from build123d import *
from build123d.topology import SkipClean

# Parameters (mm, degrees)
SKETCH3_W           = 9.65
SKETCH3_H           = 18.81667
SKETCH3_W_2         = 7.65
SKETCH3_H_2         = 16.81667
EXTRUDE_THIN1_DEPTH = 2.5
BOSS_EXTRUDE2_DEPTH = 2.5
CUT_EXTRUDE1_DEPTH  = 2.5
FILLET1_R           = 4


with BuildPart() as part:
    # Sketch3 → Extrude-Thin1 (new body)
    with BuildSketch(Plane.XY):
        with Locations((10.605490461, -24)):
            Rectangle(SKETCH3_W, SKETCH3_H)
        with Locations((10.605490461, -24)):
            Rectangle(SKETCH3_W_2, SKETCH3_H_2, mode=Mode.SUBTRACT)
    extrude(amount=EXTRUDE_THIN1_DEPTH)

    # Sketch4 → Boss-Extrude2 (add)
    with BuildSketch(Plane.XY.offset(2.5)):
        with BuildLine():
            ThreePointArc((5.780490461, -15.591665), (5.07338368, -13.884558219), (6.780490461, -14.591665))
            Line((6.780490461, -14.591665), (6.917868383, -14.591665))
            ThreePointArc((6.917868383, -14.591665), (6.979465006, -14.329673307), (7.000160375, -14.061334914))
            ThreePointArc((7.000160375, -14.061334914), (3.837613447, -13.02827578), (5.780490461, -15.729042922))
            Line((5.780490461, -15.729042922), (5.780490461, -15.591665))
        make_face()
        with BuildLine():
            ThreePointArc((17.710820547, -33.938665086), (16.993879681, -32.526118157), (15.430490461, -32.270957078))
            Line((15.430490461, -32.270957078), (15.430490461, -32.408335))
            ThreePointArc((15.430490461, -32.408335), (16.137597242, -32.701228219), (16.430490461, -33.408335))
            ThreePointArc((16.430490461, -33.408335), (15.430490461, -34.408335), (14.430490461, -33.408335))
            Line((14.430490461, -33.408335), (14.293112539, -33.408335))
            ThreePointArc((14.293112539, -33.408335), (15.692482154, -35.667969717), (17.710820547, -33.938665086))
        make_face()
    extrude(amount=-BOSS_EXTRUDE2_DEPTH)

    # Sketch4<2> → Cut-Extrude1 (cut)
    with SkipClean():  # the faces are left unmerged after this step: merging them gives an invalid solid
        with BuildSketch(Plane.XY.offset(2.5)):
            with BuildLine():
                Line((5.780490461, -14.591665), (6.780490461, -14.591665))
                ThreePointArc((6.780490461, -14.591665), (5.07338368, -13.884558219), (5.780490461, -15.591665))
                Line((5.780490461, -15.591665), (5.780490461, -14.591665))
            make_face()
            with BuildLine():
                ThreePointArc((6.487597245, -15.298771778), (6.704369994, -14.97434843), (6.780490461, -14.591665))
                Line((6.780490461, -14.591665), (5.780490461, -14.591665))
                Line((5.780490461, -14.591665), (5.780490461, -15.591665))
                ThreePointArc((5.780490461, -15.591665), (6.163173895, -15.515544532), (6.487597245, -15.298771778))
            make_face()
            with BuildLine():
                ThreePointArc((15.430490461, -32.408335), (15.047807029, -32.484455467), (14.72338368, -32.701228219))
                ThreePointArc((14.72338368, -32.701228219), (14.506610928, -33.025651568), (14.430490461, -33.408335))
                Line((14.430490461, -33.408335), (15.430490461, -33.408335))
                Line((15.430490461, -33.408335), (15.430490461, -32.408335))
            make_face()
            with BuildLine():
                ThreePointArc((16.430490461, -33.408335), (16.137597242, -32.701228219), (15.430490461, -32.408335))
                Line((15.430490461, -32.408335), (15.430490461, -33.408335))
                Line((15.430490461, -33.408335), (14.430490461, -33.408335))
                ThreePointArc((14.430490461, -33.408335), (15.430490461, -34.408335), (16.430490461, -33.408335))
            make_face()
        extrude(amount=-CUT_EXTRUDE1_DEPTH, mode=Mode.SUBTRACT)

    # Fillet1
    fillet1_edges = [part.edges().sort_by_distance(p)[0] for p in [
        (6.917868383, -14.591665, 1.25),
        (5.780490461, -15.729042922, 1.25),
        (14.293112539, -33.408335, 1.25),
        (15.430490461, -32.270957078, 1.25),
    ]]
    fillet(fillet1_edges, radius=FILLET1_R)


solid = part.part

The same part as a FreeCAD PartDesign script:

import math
import FreeCAD as App
import Part
import Sketcher
from FreeCAD import Vector


def edges_at(feature, points):
    """Names of the edges that pass closest to the given points."""
    edges = feature.Shape.Edges
    near = lambda p: min(range(len(edges)), key=lambda i: edges[i].distToShape(Part.Vertex(*p))[0])
    return sorted({f"Edge{near(p) + 1}" for p in points})


def add_polygon(sketch, points):
    """Adds a closed chain of lines whose ends are joined by coincident constraints."""
    first, n = sketch.GeometryCount, len(points)
    for a, b in zip(points, points[1:] + points[:1]):
        sketch.addGeometry(Part.LineSegment(App.Vector(*a, 0), App.Vector(*b, 0)), False)
    for i in range(n):
        sketch.addConstraint(Sketcher.Constraint("Coincident", first + i, 2, first + (i + 1) % n, 1))

doc = App.newDocument("Part")
body = doc.addObject("PartDesign::Body", "Body")

sketch1 = body.newObject("Sketcher::SketchObject", "Sketch")
sketch1.AttachmentSupport = (doc.getObject("XY_Plane"), [""])
sketch1.MapMode = "FlatFace"
add_polygon(sketch1, [(6, -15), (6, -33), (15, -33), (15, -15)])
add_polygon(sketch1, [(14, -32), (7, -32), (7, -16), (14, -16)])
sketch1.addConstraint([
    Sketcher.Constraint("Vertical", 0),
    Sketcher.Constraint("Horizontal", 1),
    Sketcher.Constraint("Vertical", 2),
    Sketcher.Constraint("Horizontal", 3),
    Sketcher.Constraint("Horizontal", 4),
    Sketcher.Constraint("Vertical", 5),
    Sketcher.Constraint("Horizontal", 6),
    Sketcher.Constraint("Vertical", 7),
    Sketcher.Constraint("DistanceX", 0, 2, 4, 2, 1.0),
    Sketcher.Constraint("DistanceY", 0, 2, 4, 2, 1.0),
    Sketcher.Constraint("DistanceY", 5, 2, 3, 2, 1.0),
    Sketcher.Constraint("DistanceX", 6, 2, 2, 2, 1.0),
    Sketcher.Constraint("DistanceX", 1, 1, 1, 2, 9.65),
    Sketcher.Constraint("DistanceY", 0, 2, 0, 1, 18.81667),
    Sketcher.Constraint("DistanceX", -1, 1, 0, 2, 5.78049),
    Sketcher.Constraint("DistanceY", 0, 2, -1, 1, 33.408335),
])
pad1 = body.newObject("PartDesign::Pad", "Pad")
pad1.Profile = sketch1
pad1.Length = 2.5

sketch2 = body.newObject("Sketcher::SketchObject", "Sketch001")
sketch2.AttachmentSupport = (doc.getObject("XY_Plane"), [""])
sketch2.MapMode = "FlatFace"
sketch2.AttachmentOffset = App.Placement(Vector(0, 0, 2.5), App.Rotation())
sketch2.addGeometry([
    Part.ArcOfCircle(Part.Circle(Vector(5.78, -14.59, 0), Vector(0, 0, 1), 1), math.radians(0), math.radians(270)),
    Part.LineSegment(Vector(6.78, -14.59, 0), Vector(6.92, -14.59, 0)),
    Part.ArcOfCircle(Part.Circle(Vector(5.25, -14.06, 0), Vector(0, 0, 1), 1.75), math.radians(-17.64), math.radians(0)),
    Part.ArcOfCircle(Part.Circle(Vector(5.25, -14.06, 0), Vector(0, 0, 1), 1.75), math.radians(0), math.radians(288)),
    Part.LineSegment(Vector(5.78, -15.73, 0), Vector(5.78, -15.59, 0)),
    Part.ArcOfCircle(Part.Circle(Vector(15.96, -33.94, 0), Vector(0, 0, 1), 1.75), math.radians(0), math.radians(108)),
    Part.LineSegment(Vector(15.43, -32.27, 0), Vector(15.43, -32.41, 0)),
    Part.ArcOfCircle(Part.Circle(Vector(15.43, -33.41, 0), Vector(0, 0, 1), 1), math.radians(0), math.radians(90)),
    Part.ArcOfCircle(Part.Circle(Vector(15.43, -33.41, 0), Vector(0, 0, 1), 1), math.radians(180), math.radians(360)),
    Part.LineSegment(Vector(14.43, -33.41, 0), Vector(14.29, -33.41, 0)),
    Part.ArcOfCircle(Part.Circle(Vector(15.96, -33.94, 0), Vector(0, 0, 1), 1.75), math.radians(162), math.radians(360)),
], False)
sketch2.addConstraint([
    Sketcher.Constraint("Coincident", 0, 1, 1, 1),
    Sketcher.Constraint("Coincident", 1, 2, 2, 1),
    Sketcher.Constraint("Tangent", 2, 2, 3, 1),
    Sketcher.Constraint("Coincident", 3, 2, 4, 1),
    Sketcher.Constraint("Coincident", 4, 2, 0, 2),
    Sketcher.Constraint("Coincident", 5, 2, 6, 1),
    Sketcher.Constraint("Coincident", 6, 2, 7, 2),
    Sketcher.Constraint("Tangent", 7, 1, 8, 2),
    Sketcher.Constraint("Coincident", 8, 1, 9, 1),
    Sketcher.Constraint("Coincident", 9, 2, 10, 1),
    Sketcher.Constraint("Tangent", 10, 2, 5, 1),
    Sketcher.Constraint("Horizontal", 1),
    Sketcher.Constraint("Vertical", 4),
    Sketcher.Constraint("Vertical", 6),
    Sketcher.Constraint("Horizontal", 9),
    Sketcher.Constraint("Equal", 2, 3),
    Sketcher.Constraint("Equal", 3, 5),
    Sketcher.Constraint("Equal", 0, 7),
    Sketcher.Constraint("Equal", 7, 8),
    Sketcher.Constraint("Equal", 5, 10),
    Sketcher.Constraint("Horizontal", 3, 3, 2, 2),
    Sketcher.Constraint("Horizontal", 8, 3, 7, 1),
    Sketcher.Constraint("Horizontal", 7, 1, 8, 1),
    Sketcher.Constraint("Horizontal", 5, 3, 10, 2),
    Sketcher.Constraint("Vertical", 0, 3, 3, 2),
    Sketcher.Constraint("Vertical", 8, 3, 5, 2),
    Sketcher.Constraint("Equal", 1, 9),
    Sketcher.Constraint("Equal", 9, 4),
    Sketcher.Constraint("Equal", 4, 6),
    Sketcher.Constraint("Radius", 0, 1.0),
    Sketcher.Constraint("Radius", 2, 1.75),
    Sketcher.Constraint("DistanceY", 4, 2, 0, 1, 1.0),
    Sketcher.Constraint("DistanceX", 0, 3, 7, 3, 9.65),
    Sketcher.Constraint("DistanceY", 5, 3, 0, 3, 19.347),
    Sketcher.Constraint("DistanceX", 1, 1, 1, 2, 0.137378),
    Sketcher.Constraint("DistanceX", -1, 1, 0, 3, 5.78049),
    Sketcher.Constraint("DistanceY", 0, 3, -1, 1, 14.591665),
])
pad2 = body.newObject("PartDesign::Pad", "Pad001")
pad2.Profile = sketch2
pad2.Length = 2.5
pad2.Reversed = True

sketch3 = body.newObject("Sketcher::SketchObject", "Sketch002")
sketch3.AttachmentSupport = (doc.getObject("XY_Plane"), [""])
sketch3.MapMode = "FlatFace"
sketch3.AttachmentOffset = App.Placement(Vector(0, 0, 2.5), App.Rotation())
sketch3.addGeometry([
    Part.LineSegment(Vector(5.8, -14.6, 0), Vector(6.8, -14.6, 0)),
    Part.ArcOfCircle(Part.Circle(Vector(5.8, -14.6, 0), Vector(0, 0, 1), 1), math.radians(0), math.radians(270)),
    Part.LineSegment(Vector(5.8, -15.6, 0), Vector(5.8, -14.6, 0)),
    Part.ArcOfCircle(Part.Circle(Vector(5.8, -14.6, 0), Vector(0, 0, 1), 1), math.radians(-45), math.radians(0)),
    Part.LineSegment(Vector(6.8, -14.6, 0), Vector(5.8, -14.6, 0)),
    Part.LineSegment(Vector(5.8, -14.6, 0), Vector(5.8, -15.6, 0)),
    Part.ArcOfCircle(Part.Circle(Vector(5.8, -14.6, 0), Vector(0, 0, 1), 1), math.radians(-90), math.radians(-45)),
    Part.ArcOfCircle(Part.Circle(Vector(15.4, -33.4, 0), Vector(0, 0, 1), 1), math.radians(90), math.radians(135)),
    Part.ArcOfCircle(Part.Circle(Vector(15.4, -33.4, 0), Vector(0, 0, 1), 1), math.radians(135), math.radians(180)),
    Part.LineSegment(Vector(14.4, -33.4, 0), Vector(15.4, -33.4, 0)),
    Part.LineSegment(Vector(15.4, -33.4, 0), Vector(15.4, -32.4, 0)),
    Part.ArcOfCircle(Part.Circle(Vector(15.4, -33.4, 0), Vector(0, 0, 1), 1), math.radians(0), math.radians(90)),
    Part.LineSegment(Vector(15.4, -32.4, 0), Vector(15.4, -33.4, 0)),
    Part.LineSegment(Vector(15.4, -33.4, 0), Vector(14.4, -33.4, 0)),
    Part.ArcOfCircle(Part.Circle(Vector(15.4, -33.4, 0), Vector(0, 0, 1), 1), math.radians(180), math.radians(360)),
], False)
sketch3.addConstraint([
    Sketcher.Constraint("Coincident", 0, 2, 1, 1),
    Sketcher.Constraint("Coincident", 1, 2, 2, 1),
    Sketcher.Constraint("Coincident", 2, 2, 0, 1),
    Sketcher.Constraint("Coincident", 3, 2, 4, 1),
    Sketcher.Constraint("Coincident", 4, 2, 5, 1),
    Sketcher.Constraint("Coincident", 5, 2, 6, 1),
    Sketcher.Constraint("Tangent", 6, 2, 3, 1),
    Sketcher.Constraint("Tangent", 7, 2, 8, 1),
    Sketcher.Constraint("Coincident", 8, 2, 9, 1),
    Sketcher.Constraint("Coincident", 9, 2, 10, 1),
    Sketcher.Constraint("Coincident", 10, 2, 7, 1),
    Sketcher.Constraint("Coincident", 11, 2, 12, 1),
    Sketcher.Constraint("Coincident", 12, 2, 13, 1),
    Sketcher.Constraint("Coincident", 13, 2, 14, 1),
    Sketcher.Constraint("Tangent", 14, 2, 11, 1),
    Sketcher.Constraint("Horizontal", 0),
    Sketcher.Constraint("Vertical", 2),
    Sketcher.Constraint("Horizontal", 4),
    Sketcher.Constraint("Vertical", 5),
    Sketcher.Constraint("Horizontal", 9),
    Sketcher.Constraint("Vertical", 10),
    Sketcher.Constraint("Vertical", 12),
    Sketcher.Constraint("Horizontal", 13),
    Sketcher.Constraint("Coincident", 3, 3, 1, 3),
    Sketcher.Constraint("Coincident", 11, 3, 7, 3),
    Sketcher.Constraint("Coincident", 2, 2, 1, 3),
    Sketcher.Constraint("Coincident", 3, 2, 0, 2),
    Sketcher.Constraint("Coincident", 5, 2, 1, 2),
    Sketcher.Constraint("Coincident", 9, 2, 7, 3),
    Sketcher.Constraint("Coincident", 11, 2, 10, 2),
    Sketcher.Constraint("Coincident", 13, 2, 8, 2),
    Sketcher.Constraint("Equal", 6, 7),
    Sketcher.Constraint("Equal", 7, 8),
    Sketcher.Constraint("Horizontal", 13, 2, 14, 2),
    Sketcher.Constraint("Radius", 1, 1.0),
    Sketcher.Constraint("DistanceX", 6, 3, 7, 3, 9.65),
    Sketcher.Constraint("DistanceX", -1, 1, 1, 3, 5.78049),
    Sketcher.Constraint("DistanceY", 6, 2, -1, 1, 15.298772),
    Sketcher.Constraint("DistanceY", 7, 2, -1, 1, 32.701228),
    Sketcher.Constraint("DistanceY", 7, 3, 6, 3, 18.81667),
    Sketcher.Constraint("DistanceY", 1, 3, -1, 1, 14.591665),
])
pocket1 = body.newObject("PartDesign::Pocket", "Pocket")
pocket1.Profile = sketch3
pocket1.Length = 2.5
doc.recompute()

fillet = body.newObject("PartDesign::Fillet", "Fillet")
fillet.Base = (pocket1, edges_at(pocket1, [
    (6.918, -14.592, 1.25),
    (5.78, -15.729, 1.25),
    (14.293, -33.408, 1.25),
    (15.43, -32.271, 1.25),
]))
fillet.Radius = 4

doc.recompute()
